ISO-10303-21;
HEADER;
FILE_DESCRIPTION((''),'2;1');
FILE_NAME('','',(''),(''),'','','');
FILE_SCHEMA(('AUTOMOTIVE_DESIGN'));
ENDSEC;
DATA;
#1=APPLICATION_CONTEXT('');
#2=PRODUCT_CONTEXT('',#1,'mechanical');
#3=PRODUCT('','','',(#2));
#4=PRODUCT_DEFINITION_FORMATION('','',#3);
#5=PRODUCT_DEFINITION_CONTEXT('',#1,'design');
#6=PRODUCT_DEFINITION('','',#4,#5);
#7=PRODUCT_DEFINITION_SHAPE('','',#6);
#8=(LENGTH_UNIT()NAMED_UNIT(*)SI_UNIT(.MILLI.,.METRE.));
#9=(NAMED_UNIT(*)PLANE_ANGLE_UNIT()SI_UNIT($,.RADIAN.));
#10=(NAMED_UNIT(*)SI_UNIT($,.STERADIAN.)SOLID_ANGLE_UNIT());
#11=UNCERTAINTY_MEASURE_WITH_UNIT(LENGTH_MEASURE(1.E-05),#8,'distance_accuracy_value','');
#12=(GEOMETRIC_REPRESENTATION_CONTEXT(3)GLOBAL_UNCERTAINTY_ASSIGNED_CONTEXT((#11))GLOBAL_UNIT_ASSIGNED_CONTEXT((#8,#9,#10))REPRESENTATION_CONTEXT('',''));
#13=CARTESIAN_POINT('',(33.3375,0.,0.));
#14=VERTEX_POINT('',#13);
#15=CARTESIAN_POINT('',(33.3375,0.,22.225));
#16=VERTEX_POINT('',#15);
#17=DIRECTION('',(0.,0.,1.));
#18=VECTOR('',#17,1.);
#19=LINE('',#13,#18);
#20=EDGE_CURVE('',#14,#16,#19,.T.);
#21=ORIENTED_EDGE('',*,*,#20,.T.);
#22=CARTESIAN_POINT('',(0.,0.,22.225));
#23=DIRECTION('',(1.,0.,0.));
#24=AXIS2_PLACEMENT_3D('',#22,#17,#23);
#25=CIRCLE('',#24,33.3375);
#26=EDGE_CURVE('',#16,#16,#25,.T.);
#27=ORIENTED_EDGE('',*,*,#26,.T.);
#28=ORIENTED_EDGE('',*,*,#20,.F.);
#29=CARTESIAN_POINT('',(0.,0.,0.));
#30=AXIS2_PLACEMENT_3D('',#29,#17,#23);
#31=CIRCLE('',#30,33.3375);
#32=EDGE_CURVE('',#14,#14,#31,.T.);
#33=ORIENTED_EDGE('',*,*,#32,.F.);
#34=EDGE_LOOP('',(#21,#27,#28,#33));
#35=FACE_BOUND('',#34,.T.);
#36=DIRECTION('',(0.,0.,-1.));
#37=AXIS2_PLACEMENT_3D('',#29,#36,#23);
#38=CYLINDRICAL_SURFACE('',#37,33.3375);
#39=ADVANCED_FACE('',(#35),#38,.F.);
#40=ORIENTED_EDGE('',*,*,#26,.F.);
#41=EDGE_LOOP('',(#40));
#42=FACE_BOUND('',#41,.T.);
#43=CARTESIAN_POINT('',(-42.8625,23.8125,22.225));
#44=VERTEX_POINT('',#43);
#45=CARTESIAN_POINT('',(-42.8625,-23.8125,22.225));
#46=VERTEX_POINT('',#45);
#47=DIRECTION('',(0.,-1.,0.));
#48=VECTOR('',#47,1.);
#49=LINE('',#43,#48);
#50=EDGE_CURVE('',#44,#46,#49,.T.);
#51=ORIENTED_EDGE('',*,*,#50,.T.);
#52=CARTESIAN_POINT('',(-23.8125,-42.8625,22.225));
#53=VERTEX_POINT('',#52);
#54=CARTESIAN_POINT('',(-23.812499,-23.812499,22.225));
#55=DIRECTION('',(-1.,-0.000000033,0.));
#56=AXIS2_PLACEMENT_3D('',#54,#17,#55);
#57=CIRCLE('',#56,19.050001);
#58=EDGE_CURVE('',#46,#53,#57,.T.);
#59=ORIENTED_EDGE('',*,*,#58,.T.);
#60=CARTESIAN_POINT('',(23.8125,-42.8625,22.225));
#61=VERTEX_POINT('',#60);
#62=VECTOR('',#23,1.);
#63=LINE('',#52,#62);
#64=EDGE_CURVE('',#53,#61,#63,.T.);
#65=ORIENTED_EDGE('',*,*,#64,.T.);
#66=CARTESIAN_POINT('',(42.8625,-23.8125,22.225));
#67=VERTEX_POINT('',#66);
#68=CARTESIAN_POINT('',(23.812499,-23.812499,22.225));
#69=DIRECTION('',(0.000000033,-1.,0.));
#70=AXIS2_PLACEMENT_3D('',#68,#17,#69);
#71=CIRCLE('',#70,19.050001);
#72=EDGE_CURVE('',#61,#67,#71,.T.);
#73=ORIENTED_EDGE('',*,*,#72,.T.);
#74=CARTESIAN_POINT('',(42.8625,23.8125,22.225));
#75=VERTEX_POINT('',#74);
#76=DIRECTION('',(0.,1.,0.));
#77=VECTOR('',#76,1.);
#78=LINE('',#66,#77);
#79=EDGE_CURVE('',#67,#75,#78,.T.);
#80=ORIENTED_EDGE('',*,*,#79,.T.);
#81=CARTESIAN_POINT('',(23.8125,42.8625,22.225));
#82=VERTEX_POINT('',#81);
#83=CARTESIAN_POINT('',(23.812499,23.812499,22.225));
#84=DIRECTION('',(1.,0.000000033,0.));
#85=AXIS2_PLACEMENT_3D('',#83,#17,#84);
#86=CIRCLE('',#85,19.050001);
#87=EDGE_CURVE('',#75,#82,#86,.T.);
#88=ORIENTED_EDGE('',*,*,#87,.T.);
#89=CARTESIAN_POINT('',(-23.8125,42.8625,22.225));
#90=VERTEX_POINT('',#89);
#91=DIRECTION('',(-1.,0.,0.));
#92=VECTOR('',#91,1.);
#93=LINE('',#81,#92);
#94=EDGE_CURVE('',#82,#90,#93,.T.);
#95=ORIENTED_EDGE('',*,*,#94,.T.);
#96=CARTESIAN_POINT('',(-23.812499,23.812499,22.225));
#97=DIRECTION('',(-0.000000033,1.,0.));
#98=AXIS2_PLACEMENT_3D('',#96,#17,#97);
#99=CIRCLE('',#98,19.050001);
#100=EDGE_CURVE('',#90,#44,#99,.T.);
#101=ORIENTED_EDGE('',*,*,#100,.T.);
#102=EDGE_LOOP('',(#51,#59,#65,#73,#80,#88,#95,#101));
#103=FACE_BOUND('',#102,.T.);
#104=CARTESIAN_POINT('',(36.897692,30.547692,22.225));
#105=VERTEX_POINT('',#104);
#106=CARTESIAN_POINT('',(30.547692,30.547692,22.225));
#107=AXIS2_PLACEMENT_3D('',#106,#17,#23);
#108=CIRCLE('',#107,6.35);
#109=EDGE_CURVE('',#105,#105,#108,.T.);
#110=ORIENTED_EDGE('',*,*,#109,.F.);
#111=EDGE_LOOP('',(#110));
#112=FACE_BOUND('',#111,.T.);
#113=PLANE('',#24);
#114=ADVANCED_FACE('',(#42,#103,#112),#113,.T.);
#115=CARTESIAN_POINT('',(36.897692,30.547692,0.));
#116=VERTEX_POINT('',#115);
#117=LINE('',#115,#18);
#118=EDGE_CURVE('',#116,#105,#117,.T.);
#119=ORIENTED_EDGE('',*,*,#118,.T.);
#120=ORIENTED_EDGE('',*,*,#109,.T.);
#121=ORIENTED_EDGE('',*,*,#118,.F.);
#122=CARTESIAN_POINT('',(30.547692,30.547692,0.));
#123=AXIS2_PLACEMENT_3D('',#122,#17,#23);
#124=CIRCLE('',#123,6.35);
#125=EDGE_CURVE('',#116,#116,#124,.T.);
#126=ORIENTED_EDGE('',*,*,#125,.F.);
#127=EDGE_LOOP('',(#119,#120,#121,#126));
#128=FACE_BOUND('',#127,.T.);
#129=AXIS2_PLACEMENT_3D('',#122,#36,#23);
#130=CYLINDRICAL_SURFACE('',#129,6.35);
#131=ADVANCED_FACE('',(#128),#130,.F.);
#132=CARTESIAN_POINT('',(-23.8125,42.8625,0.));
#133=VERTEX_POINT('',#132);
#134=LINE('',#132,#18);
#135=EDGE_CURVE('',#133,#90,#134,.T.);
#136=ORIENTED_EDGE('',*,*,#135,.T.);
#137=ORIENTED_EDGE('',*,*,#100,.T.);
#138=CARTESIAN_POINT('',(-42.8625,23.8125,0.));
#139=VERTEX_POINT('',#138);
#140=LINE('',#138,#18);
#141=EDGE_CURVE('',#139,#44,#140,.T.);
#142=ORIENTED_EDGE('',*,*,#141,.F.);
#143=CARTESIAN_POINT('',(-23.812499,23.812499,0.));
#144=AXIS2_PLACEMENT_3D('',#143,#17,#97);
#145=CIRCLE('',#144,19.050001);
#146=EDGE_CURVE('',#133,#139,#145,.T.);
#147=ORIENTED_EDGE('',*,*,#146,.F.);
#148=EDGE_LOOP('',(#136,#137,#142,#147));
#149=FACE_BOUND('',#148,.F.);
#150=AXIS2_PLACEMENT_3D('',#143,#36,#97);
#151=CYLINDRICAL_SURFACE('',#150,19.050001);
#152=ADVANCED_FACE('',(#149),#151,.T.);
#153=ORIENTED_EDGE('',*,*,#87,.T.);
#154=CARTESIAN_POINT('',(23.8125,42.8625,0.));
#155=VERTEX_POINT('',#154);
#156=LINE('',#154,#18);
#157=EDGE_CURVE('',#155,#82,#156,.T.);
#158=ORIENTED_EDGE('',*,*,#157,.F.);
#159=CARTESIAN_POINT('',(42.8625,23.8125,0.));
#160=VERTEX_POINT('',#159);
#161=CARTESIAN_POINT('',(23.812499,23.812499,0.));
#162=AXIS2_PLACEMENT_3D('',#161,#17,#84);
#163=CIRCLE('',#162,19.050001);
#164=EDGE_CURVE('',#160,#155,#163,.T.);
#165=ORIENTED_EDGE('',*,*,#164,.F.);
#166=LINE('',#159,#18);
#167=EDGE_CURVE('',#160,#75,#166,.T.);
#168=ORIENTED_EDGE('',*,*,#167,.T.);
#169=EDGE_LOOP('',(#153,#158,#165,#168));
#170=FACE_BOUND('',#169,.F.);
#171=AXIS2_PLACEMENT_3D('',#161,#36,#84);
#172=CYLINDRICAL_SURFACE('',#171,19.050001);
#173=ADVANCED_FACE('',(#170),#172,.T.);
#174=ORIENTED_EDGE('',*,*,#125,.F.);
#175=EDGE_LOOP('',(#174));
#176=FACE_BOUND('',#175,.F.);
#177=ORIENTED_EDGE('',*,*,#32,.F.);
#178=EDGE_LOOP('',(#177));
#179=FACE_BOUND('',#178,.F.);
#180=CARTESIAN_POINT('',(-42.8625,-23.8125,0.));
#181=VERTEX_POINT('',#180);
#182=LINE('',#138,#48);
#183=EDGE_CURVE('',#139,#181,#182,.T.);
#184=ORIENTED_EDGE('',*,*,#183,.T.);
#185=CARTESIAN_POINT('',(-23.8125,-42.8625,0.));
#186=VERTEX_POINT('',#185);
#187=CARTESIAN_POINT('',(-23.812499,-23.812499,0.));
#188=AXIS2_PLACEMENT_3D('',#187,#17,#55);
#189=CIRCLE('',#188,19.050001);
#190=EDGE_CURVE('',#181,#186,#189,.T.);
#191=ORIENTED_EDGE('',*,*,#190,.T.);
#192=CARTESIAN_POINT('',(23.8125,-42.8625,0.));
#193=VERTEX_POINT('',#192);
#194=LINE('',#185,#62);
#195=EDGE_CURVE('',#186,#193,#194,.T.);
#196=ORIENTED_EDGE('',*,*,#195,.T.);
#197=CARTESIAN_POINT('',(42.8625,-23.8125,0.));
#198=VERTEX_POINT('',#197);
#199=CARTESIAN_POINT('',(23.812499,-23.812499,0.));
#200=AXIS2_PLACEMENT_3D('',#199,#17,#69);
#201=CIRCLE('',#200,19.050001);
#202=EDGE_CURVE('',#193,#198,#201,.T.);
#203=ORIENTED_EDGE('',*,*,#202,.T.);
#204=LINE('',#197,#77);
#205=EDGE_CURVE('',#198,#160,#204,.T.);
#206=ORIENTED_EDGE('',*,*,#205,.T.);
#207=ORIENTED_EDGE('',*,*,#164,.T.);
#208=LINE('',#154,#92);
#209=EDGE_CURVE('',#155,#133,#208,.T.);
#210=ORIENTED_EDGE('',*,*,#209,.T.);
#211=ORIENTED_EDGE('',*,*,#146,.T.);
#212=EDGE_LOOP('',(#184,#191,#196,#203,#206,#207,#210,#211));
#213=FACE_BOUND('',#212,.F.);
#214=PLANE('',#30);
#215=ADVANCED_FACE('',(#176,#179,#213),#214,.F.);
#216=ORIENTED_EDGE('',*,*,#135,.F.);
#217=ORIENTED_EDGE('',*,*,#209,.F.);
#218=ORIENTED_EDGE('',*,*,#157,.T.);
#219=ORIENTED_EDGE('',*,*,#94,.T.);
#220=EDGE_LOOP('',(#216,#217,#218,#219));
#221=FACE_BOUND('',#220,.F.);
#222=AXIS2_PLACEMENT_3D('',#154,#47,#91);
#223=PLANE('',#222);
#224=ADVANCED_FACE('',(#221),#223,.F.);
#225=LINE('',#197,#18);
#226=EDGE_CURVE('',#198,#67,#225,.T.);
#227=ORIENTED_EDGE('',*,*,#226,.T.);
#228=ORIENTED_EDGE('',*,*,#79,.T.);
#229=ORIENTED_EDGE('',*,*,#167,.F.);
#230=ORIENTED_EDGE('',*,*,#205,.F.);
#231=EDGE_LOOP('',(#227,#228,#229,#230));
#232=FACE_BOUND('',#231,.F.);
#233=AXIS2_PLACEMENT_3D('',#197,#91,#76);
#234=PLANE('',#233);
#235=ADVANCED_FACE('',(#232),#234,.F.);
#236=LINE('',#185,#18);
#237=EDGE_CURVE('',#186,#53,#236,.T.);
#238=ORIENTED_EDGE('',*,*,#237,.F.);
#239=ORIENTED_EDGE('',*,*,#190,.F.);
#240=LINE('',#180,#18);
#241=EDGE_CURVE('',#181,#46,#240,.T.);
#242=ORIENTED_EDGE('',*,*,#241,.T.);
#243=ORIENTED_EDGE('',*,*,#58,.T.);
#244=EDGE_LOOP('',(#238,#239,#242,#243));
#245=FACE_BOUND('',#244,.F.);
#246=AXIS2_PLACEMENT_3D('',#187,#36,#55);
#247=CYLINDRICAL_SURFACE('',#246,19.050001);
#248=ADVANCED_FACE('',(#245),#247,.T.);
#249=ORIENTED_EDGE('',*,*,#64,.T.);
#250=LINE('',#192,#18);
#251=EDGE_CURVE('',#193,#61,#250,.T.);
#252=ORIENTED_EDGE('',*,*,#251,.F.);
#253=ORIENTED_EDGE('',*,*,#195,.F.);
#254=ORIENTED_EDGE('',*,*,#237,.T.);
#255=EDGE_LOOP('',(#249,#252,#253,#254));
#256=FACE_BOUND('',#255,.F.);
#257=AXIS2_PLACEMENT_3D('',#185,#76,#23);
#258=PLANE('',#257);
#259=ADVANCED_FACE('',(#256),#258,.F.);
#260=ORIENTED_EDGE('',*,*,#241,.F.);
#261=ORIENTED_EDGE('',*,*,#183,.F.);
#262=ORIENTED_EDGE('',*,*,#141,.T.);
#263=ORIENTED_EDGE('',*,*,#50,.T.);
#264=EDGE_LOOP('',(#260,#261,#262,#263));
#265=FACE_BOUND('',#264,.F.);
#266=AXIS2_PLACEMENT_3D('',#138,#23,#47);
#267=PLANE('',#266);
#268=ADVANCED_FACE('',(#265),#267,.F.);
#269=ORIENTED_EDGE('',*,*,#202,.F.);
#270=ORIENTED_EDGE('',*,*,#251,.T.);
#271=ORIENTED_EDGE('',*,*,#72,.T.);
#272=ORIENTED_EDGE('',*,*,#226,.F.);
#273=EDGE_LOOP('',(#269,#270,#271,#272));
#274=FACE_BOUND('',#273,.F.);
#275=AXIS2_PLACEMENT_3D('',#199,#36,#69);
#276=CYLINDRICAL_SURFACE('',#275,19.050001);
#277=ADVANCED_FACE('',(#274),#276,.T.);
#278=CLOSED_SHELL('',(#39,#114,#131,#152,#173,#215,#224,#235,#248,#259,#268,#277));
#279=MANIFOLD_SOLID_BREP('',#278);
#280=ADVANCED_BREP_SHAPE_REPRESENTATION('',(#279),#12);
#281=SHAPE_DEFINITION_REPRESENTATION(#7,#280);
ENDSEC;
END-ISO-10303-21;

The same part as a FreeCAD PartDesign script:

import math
import FreeCAD as App
import Part
import Sketcher

V = App.Vector
Q = App.Units.Quantity

doc = App.newDocument("Part")
body = doc.addObject("PartDesign::Body", "Body")

# Sketch on XY plane
sketch1 = body.newObject("Sketcher::SketchObject", "Sketch")
sketch1.AttachmentSupport = (doc.getObject("XY_Plane"), [""])
sketch1.MapMode = "FlatFace"
sketch1.addGeometry(Part.ArcOfCircle(Part.Circle(V(-24, -24, 0), V(0, 0, 1), 19), math.radians(-180), math.radians(-90)), False)
sketch1.addGeometry(Part.LineSegment(V(-24, -43, 0), V(24, -43, 0)), False)
sketch1.addGeometry(Part.ArcOfCircle(Part.Circle(V(24, -24, 0), V(0, 0, 1), 19), math.radians(-90), math.radians(0)), False)
sketch1.addGeometry(Part.LineSegment(V(43, -24, 0), V(43, 24, 0)), False)
sketch1.addGeometry(Part.ArcOfCircle(Part.Circle(V(24, 24, 0), V(0, 0, 1), 19), math.radians(0), math.radians(90)), False)
sketch1.addGeometry(Part.LineSegment(V(24, 43, 0), V(-24, 43, 0)), False)
sketch1.addGeometry(Part.ArcOfCircle(Part.Circle(V(-24, 24, 0), V(0, 0, 1), 19), math.radians(90), math.radians(180)), False)
sketch1.addGeometry(Part.LineSegment(V(-43, 24, 0), V(-43, -24, 0)), False)
sketch1.addGeometry(Part.Circle(V(0, 0, 0), V(0, 0, 1), 33), False)
sketch1.addGeometry(Part.Circle(V(31, 31, 0), V(0, 0, 1), 6), False)
sketch1.addConstraint(Sketcher.Constraint("Tangent", 0, 2, 1, 1))
sketch1.addConstraint(Sketcher.Constraint("Tangent", 1, 2, 2, 1))
sketch1.addConstraint(Sketcher.Constraint("Tangent", 2, 2, 3, 1))
sketch1.addConstraint(Sketcher.Constraint("Tangent", 3, 2, 4, 1))
sketch1.addConstraint(Sketcher.Constraint("Tangent", 4, 2, 5, 1))
sketch1.addConstraint(Sketcher.Constraint("Tangent", 5, 2, 6, 1))
sketch1.addConstraint(Sketcher.Constraint("Tangent", 6, 2, 7, 1))
sketch1.addConstraint(Sketcher.Constraint("Tangent", 7, 2, 0, 1))
sketch1.addConstraint(Sketcher.Constraint("Horizontal", 1))
sketch1.addConstraint(Sketcher.Constraint("Vertical", 3))
sketch1.addConstraint(Sketcher.Constraint("Horizontal", 5))
sketch1.addConstraint(Sketcher.Constraint("Vertical", 7))
sketch1.addConstraint(Sketcher.Constraint("Coincident", 8, 3, -1, 1))
sketch1.addConstraint(Sketcher.Constraint("Equal", 0, 2))
sketch1.addConstraint(Sketcher.Constraint("Equal", 2, 4))
sketch1.addConstraint(Sketcher.Constraint("Equal", 4, 6))
sketch1.addConstraint(Sketcher.Constraint("Symmetric", 0, 3, 4, 3, -1, 1))
sketch1.addConstraint(Sketcher.Constraint("Equal", 5, 3))
sketch1.addConstraint(Sketcher.Constraint("Diameter", 9, Q("0.5 in")))
sketch1.addConstraint(Sketcher.Constraint("Radius", 0, Q("0.75 in")))
sketch1.addConstraint(Sketcher.Constraint("Diameter", 8, Q("2.625 in")))
sketch1.addConstraint(Sketcher.Constraint("DistanceX", 1, 1, 1, 2, Q("1.875 in")))
sketch1.addConstraint(Sketcher.Constraint("DistanceY", 2, 3, 9, 3, 54.360191))
sketch1.addConstraint(Sketcher.Constraint("DistanceX", 6, 3, 9, 3, 54.360191))
pad1 = body.newObject("PartDesign::Pad", "Pad")
pad1.Profile = sketch1
pad1.Length = Q("0.875 in")

doc.recompute()
